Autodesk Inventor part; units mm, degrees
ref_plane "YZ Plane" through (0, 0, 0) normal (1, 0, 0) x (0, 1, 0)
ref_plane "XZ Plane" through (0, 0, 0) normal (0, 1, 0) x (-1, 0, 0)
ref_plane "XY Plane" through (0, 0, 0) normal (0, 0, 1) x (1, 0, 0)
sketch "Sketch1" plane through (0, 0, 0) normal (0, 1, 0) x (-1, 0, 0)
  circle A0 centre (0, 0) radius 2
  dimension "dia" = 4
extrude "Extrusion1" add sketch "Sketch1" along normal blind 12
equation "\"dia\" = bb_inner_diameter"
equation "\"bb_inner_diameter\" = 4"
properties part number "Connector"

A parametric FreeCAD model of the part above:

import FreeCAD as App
import Part
import Sketcher

doc = App.newDocument("Part")
params = doc.addObject("Spreadsheet::Sheet", "Params")
for row, (alias, value) in enumerate([
    ("sketch1_diameter", "4 mm"),
    ("pad1_length", "12 mm"),
], start=1):
    params.set(f"A{row}", alias)
    params.set(f"B{row}", "=" + value)
    params.setAlias(f"B{row}", alias)

body = doc.addObject("PartDesign::Body", "Body")

sketch1 = body.newObject("Sketcher::SketchObject", "Sketch")
sketch1.AttachmentSupport = (doc.getObject("XZ_Plane"), [""])
sketch1.MapMode = "FlatFace"
sketch1.addGeometry(Part.Circle(App.Vector(0, 0, 0), App.Vector(0, 0, 1), 2), False)
sketch1.addConstraint(Sketcher.Constraint("Coincident", 0, 3, -1, 1))
sketch1.addConstraint(Sketcher.Constraint("Diameter", 0, 4.0))
sketch1.setExpression("Constraints[1]", "Params.sketch1_diameter")
pad1 = body.newObject("PartDesign::Pad", "Pad")
pad1.Profile = sketch1
pad1.setExpression("Length", "Params.pad1_length")
pad1.Reversed = True

doc.recompute()
